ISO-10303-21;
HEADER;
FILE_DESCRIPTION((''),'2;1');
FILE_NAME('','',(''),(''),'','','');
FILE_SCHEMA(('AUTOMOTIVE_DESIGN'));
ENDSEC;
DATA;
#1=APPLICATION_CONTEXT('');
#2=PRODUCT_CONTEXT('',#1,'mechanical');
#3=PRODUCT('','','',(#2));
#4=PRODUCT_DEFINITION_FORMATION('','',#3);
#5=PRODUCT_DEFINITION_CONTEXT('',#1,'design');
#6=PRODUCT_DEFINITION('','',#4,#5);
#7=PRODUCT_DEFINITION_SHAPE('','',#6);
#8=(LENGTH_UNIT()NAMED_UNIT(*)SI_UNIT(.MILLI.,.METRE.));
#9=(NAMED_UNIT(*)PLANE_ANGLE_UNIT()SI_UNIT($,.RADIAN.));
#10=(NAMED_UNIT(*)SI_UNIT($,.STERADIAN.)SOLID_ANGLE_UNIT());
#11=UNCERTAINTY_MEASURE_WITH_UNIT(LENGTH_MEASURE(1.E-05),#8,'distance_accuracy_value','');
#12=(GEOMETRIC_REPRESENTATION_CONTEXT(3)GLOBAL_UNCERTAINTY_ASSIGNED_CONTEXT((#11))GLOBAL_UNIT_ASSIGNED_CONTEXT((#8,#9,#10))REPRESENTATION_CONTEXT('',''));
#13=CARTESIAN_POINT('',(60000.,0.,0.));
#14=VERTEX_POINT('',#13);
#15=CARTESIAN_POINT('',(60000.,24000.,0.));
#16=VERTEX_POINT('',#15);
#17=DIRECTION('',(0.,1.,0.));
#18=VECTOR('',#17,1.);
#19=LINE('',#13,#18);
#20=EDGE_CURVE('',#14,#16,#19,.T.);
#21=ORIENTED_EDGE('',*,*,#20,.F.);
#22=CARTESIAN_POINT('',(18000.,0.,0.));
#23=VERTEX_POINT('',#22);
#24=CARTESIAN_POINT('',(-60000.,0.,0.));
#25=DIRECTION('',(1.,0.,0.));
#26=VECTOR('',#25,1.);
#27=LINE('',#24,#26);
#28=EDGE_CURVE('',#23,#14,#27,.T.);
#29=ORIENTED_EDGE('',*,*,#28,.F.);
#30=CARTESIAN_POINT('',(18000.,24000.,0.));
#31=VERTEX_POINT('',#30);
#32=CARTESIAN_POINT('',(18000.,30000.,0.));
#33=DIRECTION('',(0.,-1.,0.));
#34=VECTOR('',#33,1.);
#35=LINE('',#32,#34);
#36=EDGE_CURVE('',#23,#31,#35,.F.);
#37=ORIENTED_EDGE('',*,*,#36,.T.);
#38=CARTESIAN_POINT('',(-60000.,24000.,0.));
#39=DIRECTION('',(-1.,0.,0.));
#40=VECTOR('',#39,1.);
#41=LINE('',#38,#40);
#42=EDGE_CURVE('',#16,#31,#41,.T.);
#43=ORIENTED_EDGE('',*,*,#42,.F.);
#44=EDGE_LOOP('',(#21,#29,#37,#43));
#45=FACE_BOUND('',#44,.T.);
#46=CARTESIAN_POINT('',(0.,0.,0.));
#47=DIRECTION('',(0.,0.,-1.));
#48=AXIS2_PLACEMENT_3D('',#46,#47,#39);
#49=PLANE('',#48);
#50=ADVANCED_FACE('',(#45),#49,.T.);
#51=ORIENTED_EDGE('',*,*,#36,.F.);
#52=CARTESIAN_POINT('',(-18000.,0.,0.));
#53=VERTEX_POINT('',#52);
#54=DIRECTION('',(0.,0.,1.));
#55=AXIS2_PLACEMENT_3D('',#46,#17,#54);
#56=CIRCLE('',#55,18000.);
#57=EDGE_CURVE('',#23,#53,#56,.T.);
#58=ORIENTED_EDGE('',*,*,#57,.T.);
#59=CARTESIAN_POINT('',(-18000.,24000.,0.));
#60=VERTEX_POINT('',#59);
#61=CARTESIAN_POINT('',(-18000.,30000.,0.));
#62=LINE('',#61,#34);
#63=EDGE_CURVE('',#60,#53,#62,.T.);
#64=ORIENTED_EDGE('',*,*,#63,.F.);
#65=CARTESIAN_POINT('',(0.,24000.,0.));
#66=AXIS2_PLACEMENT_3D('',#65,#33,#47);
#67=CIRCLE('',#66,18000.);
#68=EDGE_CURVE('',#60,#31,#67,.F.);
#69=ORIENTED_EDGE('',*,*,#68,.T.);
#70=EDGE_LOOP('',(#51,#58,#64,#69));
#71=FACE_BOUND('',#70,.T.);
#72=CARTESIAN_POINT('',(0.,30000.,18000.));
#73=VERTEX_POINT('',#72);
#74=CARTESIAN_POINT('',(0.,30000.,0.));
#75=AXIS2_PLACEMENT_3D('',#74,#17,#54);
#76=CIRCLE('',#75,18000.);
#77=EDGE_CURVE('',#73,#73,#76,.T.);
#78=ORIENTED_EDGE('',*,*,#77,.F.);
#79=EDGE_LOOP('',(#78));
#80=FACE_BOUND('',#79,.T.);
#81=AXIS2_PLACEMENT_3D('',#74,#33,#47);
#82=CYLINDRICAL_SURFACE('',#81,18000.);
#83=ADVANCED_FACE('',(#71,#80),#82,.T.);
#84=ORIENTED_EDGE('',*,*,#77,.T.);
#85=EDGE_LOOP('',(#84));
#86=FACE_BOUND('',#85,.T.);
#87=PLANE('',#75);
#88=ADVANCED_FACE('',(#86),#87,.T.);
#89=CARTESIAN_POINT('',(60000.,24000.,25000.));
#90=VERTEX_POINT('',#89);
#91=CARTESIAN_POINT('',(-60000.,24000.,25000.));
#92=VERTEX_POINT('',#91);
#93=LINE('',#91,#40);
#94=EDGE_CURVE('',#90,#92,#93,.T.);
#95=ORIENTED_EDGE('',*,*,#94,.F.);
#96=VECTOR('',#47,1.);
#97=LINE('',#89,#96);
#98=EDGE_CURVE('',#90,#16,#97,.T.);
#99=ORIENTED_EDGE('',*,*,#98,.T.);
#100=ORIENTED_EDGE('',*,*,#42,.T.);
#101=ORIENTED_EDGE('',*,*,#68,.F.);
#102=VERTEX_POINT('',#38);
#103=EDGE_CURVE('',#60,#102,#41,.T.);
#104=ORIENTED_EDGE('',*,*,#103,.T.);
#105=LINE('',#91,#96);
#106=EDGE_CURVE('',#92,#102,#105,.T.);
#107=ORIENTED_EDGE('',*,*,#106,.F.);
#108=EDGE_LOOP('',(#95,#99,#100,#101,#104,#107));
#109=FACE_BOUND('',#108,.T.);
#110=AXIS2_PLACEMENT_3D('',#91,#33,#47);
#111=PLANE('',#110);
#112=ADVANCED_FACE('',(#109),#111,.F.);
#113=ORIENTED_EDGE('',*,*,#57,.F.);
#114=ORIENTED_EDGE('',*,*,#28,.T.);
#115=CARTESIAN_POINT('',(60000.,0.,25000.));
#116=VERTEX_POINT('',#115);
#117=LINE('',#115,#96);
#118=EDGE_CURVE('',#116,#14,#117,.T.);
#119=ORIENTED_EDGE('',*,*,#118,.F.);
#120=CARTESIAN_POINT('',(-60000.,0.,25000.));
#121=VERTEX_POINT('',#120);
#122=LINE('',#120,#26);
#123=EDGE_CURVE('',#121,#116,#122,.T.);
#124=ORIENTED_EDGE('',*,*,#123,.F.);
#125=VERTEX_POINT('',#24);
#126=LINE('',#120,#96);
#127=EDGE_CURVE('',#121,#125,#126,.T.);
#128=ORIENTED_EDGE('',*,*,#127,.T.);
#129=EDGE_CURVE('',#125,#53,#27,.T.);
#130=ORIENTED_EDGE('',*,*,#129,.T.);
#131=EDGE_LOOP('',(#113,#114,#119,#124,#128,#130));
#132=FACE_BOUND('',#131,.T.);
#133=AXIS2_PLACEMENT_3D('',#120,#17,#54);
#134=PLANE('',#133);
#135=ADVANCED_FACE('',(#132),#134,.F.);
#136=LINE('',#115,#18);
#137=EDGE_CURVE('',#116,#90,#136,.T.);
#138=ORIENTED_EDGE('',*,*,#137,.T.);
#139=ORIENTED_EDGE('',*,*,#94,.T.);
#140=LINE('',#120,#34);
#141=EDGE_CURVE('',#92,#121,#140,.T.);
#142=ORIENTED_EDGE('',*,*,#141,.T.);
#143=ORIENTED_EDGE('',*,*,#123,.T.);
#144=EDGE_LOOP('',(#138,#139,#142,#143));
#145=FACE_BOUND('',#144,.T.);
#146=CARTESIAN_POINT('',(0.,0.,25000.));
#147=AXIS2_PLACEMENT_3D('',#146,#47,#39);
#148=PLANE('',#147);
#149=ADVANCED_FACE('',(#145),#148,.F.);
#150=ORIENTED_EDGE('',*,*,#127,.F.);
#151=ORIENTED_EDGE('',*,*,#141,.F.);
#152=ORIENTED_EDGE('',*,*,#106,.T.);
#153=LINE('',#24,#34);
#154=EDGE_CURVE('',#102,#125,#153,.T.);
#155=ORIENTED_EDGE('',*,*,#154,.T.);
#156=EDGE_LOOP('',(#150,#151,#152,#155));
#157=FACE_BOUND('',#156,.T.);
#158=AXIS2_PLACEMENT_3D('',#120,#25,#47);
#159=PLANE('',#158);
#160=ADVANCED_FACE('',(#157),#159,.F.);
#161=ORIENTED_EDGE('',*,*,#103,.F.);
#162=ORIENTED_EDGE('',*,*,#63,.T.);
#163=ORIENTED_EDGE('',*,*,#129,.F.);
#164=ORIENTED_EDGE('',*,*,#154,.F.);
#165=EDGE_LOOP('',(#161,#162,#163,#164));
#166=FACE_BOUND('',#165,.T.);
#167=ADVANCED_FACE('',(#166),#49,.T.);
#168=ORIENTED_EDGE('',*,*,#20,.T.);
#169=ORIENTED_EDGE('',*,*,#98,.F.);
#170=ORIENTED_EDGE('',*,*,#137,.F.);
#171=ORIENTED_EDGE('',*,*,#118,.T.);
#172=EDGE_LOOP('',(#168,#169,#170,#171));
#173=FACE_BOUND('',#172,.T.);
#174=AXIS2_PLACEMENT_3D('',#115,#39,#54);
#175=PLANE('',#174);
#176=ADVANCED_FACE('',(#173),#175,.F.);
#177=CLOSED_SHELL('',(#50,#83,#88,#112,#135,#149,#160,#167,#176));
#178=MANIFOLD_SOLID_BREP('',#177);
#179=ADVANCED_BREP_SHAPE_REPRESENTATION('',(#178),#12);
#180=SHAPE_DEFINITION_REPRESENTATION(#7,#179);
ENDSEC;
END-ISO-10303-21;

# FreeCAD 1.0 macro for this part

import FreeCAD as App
import Part
import Sketcher
from FreeCAD import Vector

doc = App.newDocument("Part")
body = doc.addObject("PartDesign::Body", "Body")

sketch1 = doc.addObject("Sketcher::SketchObject", "Sketch")
body.addObject(sketch1)
sketch1.AttachmentSupport = (doc.XY_Plane, [""])
sketch1.MapMode = "FlatFace"
sketch1.addGeometry(Part.LineSegment(Vector(-60000, 24000, 0), Vector(-60000, 0, 0)), False)
sketch1.addGeometry(Part.LineSegment(Vector(-60000, 0, 0), Vector(60000, 0, 0)), False)
sketch1.addGeometry(Part.LineSegment(Vector(60000, 0, 0), Vector(60000, 24000, 0)), False)
sketch1.addGeometry(Part.LineSegment(Vector(60000, 24000, 0), Vector(-60000, 24000, 0)), False)
sketch1.addConstraint(Sketcher.Constraint("Coincident", 0, 2, 1, 1))
sketch1.addConstraint(Sketcher.Constraint("Coincident", 1, 2, 2, 1))
sketch1.addConstraint(Sketcher.Constraint("Coincident", 2, 2, 3, 1))
sketch1.addConstraint(Sketcher.Constraint("Coincident", 3, 2, 0, 1))
sketch1.addConstraint(Sketcher.Constraint("Vertical", 0))
sketch1.addConstraint(Sketcher.Constraint("Horizontal", 1))
sketch1.addConstraint(Sketcher.Constraint("Vertical", 2))
sketch1.addConstraint(Sketcher.Constraint("Horizontal", 3))
sketch1.addConstraint(Sketcher.Constraint("Symmetric", 0, 2, 1, 2, -1, 1))
sketch1.addConstraint(Sketcher.Constraint("DistanceX", 1, 1, 1, 2, 120000.0))
sketch1.addConstraint(Sketcher.Constraint("DistanceY", 0, 2, 0, 1, 24000.0))
pad1 = doc.addObject("PartDesign::Pad", "Pad")
body.addObject(pad1)
pad1.Profile = sketch1
pad1.Length = 25000

sketch2 = doc.addObject("Sketcher::SketchObject", "Sketch001")
body.addObject(sketch2)
sketch2.AttachmentSupport = (doc.XZ_Plane, [""])
sketch2.MapMode = "FlatFace"
sketch2.addGeometry(Part.Circle(Vector(0, 0, 0), Vector(0, 0, 1), 18000), False)
sketch2.addConstraint(Sketcher.Constraint("Coincident", 0, 3, -1, 1))
sketch2.addConstraint(Sketcher.Constraint("Diameter", 0, 36000.0))
pad2 = doc.addObject("PartDesign::Pad", "Pad001")
body.addObject(pad2)
pad2.Profile = sketch2
pad2.Length = 30000
pad2.Reversed = True

doc.recompute()
